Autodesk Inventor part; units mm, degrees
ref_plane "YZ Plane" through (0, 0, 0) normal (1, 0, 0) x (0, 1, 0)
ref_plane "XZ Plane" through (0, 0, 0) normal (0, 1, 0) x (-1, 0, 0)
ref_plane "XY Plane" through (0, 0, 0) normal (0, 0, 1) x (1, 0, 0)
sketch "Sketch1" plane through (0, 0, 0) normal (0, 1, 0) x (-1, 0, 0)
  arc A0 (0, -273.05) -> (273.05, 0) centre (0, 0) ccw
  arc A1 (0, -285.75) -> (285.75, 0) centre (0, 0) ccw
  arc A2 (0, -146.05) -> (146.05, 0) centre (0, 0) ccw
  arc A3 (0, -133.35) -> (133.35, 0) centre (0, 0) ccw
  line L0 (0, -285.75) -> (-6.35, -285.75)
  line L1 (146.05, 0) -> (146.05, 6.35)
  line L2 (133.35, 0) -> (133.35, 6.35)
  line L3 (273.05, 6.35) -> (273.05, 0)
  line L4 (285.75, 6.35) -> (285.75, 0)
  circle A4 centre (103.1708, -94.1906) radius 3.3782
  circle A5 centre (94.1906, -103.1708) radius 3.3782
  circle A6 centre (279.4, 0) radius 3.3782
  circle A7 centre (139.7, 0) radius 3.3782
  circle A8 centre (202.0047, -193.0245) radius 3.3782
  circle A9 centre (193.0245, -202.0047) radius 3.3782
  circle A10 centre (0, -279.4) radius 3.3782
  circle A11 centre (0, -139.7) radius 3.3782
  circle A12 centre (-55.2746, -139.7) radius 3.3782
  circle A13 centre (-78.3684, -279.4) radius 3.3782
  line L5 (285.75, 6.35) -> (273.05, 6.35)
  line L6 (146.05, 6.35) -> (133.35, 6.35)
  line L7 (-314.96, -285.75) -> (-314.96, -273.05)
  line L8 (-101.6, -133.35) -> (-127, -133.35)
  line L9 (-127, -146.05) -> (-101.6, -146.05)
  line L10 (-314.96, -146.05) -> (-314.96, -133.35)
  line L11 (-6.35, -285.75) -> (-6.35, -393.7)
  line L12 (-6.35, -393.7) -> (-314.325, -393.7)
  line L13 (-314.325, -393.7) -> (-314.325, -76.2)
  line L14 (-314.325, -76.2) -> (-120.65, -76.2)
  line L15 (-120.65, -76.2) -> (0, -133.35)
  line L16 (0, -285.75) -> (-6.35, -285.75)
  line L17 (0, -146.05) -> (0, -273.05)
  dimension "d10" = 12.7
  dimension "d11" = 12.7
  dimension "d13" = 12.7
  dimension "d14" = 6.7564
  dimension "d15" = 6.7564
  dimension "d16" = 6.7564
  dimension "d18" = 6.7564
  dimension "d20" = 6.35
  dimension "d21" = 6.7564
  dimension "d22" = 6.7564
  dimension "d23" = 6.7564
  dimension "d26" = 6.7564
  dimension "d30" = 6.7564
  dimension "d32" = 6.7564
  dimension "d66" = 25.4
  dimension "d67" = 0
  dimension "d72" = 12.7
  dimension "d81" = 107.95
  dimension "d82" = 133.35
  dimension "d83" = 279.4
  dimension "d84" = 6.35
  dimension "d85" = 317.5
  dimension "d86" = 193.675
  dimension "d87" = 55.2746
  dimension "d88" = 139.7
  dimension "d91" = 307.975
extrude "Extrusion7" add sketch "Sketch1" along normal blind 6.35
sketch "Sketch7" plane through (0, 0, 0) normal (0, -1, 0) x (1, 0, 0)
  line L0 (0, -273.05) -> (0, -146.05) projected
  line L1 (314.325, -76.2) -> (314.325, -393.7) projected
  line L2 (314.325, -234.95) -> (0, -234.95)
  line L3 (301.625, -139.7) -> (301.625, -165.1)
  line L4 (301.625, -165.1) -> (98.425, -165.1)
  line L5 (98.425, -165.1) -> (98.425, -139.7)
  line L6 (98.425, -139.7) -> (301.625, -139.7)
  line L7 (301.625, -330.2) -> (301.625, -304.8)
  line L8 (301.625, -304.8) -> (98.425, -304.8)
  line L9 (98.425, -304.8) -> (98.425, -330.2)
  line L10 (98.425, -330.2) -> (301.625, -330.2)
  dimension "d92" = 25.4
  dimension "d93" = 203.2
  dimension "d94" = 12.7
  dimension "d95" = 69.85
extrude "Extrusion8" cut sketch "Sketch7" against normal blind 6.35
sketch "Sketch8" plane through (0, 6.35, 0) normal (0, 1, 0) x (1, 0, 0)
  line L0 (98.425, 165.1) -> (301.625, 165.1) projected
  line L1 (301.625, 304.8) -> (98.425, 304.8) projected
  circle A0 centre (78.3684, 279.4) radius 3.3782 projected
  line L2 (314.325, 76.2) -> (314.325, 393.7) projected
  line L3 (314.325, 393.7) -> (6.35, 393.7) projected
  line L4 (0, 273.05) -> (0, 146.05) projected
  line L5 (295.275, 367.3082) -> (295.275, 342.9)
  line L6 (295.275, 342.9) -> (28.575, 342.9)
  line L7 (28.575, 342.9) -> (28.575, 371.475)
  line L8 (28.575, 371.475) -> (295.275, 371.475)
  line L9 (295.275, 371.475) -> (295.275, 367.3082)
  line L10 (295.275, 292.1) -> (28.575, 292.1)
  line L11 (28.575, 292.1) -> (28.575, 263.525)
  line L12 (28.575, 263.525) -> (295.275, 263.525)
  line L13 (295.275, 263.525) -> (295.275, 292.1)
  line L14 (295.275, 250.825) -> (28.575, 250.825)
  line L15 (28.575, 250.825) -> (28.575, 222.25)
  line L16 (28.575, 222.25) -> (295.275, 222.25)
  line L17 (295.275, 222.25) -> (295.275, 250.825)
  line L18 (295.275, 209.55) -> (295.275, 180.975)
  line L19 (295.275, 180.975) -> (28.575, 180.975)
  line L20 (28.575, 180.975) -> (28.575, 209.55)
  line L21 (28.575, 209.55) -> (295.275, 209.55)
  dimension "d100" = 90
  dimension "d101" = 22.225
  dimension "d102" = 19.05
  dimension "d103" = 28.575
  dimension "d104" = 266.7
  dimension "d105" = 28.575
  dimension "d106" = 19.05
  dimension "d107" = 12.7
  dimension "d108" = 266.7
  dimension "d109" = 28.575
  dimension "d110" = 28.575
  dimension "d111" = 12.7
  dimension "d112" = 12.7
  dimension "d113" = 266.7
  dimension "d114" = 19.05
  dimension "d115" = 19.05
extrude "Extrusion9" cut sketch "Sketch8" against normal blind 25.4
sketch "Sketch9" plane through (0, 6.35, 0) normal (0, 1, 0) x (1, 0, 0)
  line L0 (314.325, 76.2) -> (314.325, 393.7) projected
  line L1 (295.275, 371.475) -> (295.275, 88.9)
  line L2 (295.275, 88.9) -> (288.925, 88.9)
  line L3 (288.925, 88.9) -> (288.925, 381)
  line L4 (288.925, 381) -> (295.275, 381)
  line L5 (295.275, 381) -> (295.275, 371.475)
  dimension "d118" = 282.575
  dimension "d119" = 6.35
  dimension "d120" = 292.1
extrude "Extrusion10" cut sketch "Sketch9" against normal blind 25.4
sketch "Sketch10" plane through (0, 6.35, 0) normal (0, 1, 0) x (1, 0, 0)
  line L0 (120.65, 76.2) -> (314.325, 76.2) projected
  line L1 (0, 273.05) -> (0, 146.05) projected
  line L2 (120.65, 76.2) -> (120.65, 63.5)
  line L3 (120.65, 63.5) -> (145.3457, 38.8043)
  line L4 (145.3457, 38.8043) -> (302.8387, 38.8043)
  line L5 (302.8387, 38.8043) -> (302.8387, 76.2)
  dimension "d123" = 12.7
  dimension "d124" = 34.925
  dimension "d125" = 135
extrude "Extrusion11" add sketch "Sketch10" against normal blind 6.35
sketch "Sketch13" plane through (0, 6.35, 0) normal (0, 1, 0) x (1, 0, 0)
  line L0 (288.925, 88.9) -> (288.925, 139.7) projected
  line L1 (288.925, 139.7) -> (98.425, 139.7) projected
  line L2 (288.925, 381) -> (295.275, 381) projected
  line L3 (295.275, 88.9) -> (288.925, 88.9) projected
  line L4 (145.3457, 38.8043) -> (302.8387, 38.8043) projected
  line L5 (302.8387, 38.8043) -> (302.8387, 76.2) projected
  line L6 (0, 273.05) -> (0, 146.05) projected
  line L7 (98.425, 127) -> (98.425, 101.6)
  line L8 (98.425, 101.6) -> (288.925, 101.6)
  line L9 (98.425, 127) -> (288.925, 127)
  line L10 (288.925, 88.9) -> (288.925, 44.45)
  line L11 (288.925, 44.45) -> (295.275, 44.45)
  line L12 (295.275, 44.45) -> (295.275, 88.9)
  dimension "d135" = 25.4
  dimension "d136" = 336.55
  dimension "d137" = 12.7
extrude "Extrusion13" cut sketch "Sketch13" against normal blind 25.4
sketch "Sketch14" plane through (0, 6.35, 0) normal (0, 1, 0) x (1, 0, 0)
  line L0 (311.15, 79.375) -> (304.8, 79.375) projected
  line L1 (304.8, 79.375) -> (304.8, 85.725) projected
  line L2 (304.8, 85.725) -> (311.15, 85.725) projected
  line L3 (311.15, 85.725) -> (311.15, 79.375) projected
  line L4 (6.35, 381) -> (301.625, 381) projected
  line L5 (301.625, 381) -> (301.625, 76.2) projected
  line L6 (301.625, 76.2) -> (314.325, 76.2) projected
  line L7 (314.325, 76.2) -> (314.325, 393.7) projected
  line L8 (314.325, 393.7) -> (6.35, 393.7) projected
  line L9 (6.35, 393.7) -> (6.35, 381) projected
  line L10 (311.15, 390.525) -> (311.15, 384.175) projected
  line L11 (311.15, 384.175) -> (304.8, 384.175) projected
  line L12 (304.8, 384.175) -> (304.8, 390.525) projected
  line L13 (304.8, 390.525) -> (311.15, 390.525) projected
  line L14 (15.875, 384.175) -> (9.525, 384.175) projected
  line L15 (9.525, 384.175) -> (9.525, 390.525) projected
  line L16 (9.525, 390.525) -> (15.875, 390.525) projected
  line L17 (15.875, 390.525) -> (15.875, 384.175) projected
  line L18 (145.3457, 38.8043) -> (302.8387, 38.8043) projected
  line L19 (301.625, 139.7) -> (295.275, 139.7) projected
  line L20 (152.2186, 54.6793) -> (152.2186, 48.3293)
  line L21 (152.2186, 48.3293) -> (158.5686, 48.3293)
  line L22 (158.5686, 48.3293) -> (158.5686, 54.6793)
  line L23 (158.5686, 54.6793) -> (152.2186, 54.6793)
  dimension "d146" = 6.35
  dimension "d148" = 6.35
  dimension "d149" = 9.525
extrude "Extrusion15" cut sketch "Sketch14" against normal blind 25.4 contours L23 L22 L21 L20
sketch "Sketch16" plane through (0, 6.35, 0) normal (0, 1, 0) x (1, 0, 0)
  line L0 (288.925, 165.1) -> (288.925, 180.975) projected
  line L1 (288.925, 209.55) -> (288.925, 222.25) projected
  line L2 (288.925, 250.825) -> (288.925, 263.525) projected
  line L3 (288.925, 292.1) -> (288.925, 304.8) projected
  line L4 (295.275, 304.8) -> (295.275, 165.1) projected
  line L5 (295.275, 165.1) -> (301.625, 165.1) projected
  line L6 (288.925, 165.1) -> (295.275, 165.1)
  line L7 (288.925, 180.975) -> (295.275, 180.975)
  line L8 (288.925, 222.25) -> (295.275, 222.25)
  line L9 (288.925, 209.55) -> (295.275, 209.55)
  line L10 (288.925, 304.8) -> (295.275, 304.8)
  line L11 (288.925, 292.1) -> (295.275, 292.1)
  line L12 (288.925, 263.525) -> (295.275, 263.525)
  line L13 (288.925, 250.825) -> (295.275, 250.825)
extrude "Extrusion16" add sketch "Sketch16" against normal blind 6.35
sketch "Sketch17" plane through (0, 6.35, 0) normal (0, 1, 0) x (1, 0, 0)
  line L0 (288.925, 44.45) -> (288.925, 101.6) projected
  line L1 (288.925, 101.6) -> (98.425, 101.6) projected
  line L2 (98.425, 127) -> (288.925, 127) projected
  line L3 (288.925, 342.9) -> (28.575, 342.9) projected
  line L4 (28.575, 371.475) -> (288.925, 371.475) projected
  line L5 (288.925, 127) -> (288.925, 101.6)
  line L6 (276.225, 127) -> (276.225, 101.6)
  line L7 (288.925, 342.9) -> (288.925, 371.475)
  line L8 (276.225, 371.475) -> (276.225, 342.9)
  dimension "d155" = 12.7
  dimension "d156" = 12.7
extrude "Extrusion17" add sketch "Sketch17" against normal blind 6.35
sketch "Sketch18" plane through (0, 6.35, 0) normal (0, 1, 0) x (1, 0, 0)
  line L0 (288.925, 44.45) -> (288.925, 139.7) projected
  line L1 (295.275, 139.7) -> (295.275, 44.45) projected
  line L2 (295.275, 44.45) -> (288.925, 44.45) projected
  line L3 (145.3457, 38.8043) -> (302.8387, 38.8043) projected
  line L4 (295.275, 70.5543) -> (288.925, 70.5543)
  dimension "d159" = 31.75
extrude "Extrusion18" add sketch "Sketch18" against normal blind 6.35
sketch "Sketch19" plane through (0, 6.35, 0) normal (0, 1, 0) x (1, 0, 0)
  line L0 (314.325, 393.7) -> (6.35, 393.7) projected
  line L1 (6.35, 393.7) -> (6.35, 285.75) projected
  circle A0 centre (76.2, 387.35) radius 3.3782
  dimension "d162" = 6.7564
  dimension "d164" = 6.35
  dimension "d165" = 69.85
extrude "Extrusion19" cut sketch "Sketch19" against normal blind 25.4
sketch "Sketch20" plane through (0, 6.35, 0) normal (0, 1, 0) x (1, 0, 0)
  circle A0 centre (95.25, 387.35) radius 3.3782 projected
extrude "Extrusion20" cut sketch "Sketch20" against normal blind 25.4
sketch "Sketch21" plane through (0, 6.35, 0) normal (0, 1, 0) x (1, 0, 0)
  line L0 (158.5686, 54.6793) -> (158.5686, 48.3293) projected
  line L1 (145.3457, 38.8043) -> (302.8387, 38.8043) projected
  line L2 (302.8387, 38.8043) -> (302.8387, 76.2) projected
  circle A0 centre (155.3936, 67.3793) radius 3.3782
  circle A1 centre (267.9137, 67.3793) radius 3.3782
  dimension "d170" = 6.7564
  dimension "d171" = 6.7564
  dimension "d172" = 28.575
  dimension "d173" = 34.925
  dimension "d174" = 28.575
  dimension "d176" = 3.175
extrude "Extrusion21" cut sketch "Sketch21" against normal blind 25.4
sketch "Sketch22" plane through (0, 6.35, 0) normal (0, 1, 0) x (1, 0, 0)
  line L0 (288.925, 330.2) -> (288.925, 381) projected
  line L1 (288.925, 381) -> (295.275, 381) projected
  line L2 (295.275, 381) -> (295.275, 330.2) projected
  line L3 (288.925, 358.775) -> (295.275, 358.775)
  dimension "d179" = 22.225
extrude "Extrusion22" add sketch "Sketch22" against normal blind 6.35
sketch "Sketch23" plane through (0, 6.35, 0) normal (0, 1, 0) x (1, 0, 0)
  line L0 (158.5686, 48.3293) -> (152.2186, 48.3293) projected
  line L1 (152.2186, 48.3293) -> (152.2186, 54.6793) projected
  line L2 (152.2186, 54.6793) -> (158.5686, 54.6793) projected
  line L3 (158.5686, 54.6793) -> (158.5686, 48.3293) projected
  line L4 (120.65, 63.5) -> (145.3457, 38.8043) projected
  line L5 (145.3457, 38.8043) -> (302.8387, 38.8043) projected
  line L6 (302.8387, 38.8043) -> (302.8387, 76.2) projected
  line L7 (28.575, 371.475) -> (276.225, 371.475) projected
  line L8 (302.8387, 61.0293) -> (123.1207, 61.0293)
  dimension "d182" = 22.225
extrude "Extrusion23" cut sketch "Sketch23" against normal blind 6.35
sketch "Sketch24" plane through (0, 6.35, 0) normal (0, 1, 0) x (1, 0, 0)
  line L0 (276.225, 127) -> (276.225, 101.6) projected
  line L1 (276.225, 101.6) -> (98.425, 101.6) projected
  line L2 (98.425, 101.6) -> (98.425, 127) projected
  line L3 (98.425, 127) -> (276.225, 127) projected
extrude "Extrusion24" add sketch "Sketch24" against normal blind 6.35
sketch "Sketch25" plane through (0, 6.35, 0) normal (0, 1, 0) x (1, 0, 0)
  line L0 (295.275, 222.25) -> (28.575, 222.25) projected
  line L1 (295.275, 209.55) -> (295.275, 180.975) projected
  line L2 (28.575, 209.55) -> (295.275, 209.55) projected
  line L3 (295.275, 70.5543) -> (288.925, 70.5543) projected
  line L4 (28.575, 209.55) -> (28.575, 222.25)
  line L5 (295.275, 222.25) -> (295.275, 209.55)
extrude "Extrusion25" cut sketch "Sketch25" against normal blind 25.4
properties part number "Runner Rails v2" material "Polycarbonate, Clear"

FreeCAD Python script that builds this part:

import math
import FreeCAD as App
import Part
import Sketcher
from FreeCAD import Vector
Q = App.Units.Quantity


def add_polygon(sketch, points):
    """Adds a closed chain of lines whose ends are joined by coincident constraints."""
    first, n = sketch.GeometryCount, len(points)
    for a, b in zip(points, points[1:] + points[:1]):
        sketch.addGeometry(Part.LineSegment(App.Vector(*a, 0), App.Vector(*b, 0)), False)
    for i in range(n):
        sketch.addConstraint(Sketcher.Constraint("Coincident", first + i, 2, first + (i + 1) % n, 1))

doc = App.newDocument("Part")
params = doc.addObject("Spreadsheet::Sheet", "Params")
for row, (alias, value) in enumerate([
    ("sketch1_radius", "5.25 in"),
    ("sketch1_diameter", "0.266 in"),
    ("sketch1_width", "0.5 in"),
    ("sketch1_height", "12.5 in"),
    ("sketch1_width2", "0.25 in"),
    ("pad1_length", "0.25 in"),
    ("sketch2_width", "8 in"),
    ("sketch2_height", "1 in"),
    ("pocket1_length", "0.25 in"),
    ("sketch3_width", "10.5 in"),
    ("sketch3_height", "1.125 in"),
    ("sketch3_diameter", "0.266 in"),
    ("pocket2_length", "1 in"),
    ("sketch4_height", "11.5 in"),
    ("sketch4_width", "0.25 in"),
    ("pocket3_length", "1 in"),
    ("sketch5_height", "0.5 in"),
    ("sketch5_length", "1.375 in"),
    ("pad2_length", "0.25 in"),
    ("sketch6_height", "1 in"),
    ("sketch6_width", "7.5 in"),
    ("sketch6_width2", "0.25 in"),
    ("sketch6_height2", "1.75 in"),
    ("pocket4_length", "1 in"),
    ("sketch7_width", "0.25 in"),
    ("pocket5_length", "1 in"),
    ("sketch8_height", "0.5 in"),
    ("sketch8_width", "0.25 in"),
    ("sketch8_height2", "0.625 in"),
    ("pad3_length", "0.25 in"),
    ("sketch9_width", "0.5 in"),
    ("sketch9_height", "1 in"),
    ("sketch9_height2", "1.125 in"),
    ("pad4_length", "0.25 in"),
    ("sketch10_width", "0.25 in"),
    ("pad5_length", "0.25 in"),
    ("sketch11_diameter", "0.266 in"),
    ("pocket6_length", "1 in"),
    ("sketch12_diameter", "0.266 in"),
    ("pocket7_length", "1 in"),
    ("sketch13_diameter", "0.266 in"),
    ("pocket8_length", "1 in"),
    ("sketch14_height", "0.875 in"),
    ("sketch14_width", "0.25 in"),
    ("pad6_length", "0.25 in"),
    ("sketch15_height", "0.875 in"),
    ("sketch15_width", "0.25 in"),
    ("pocket9_length", "0.25 in"),
    ("sketch16_width", "7 in"),
    ("sketch16_height", "1 in"),
    ("pad7_length", "0.25 in"),
    ("sketch17_width", "10.5 in"),
    ("sketch17_height", "0.5 in"),
    ("pocket10_length", "1 in"),
], start=1):
    params.set(f"A{row}", alias)
    params.set(f"B{row}", "=" + value)
    params.setAlias(f"B{row}", alias)

body = doc.addObject("PartDesign::Body", "Body")

# Sketch on XZ plane
sketch1 = body.newObject("Sketcher::SketchObject", "Sketch")
sketch1.AttachmentSupport = (doc.getObject("XZ_Plane"), [""])
sketch1.MapMode = "FlatFace"
sketch1.addGeometry(Part.ArcOfCircle(Part.Circle(Vector(0, 0, 0), Vector(0, 0, 1), 273.1), math.radians(180), math.radians(270)), False)
sketch1.addGeometry(Part.LineSegment(Vector(0, -273.1, 0), Vector(0, -146.1, 0)), False)
sketch1.addGeometry(Part.ArcOfCircle(Part.Circle(Vector(0, 0, 0), Vector(0, 0, 1), 146.1), math.radians(180), math.radians(270)), False)
sketch1.addGeometry(Part.LineSegment(Vector(-146.1, 0, 0), Vector(-146.1, 6.3, 0)), False)
sketch1.addGeometry(Part.LineSegment(Vector(-146.1, 6.3, 0), Vector(-133.3, 6.3, 0)), False)
sketch1.addGeometry(Part.LineSegment(Vector(-133.3, 6.3, 0), Vector(-133.3, 0, 0)), False)
sketch1.addGeometry(Part.ArcOfCircle(Part.Circle(Vector(0, 0, 0), Vector(0, 0, 1), 133.3), math.radians(180), math.radians(270)), False)
sketch1.addGeometry(Part.LineSegment(Vector(0, -133.3, 0), Vector(120.7, -76.2, 0)), False)
sketch1.addGeometry(Part.LineSegment(Vector(120.7, -76.2, 0), Vector(314.3, -76.2, 0)), False)
sketch1.addGeometry(Part.LineSegment(Vector(314.3, -76.2, 0), Vector(314.3, -393.7, 0)), False)
sketch1.addGeometry(Part.LineSegment(Vector(314.3, -393.7, 0), Vector(6.3, -393.7, 0)), False)
sketch1.addGeometry(Part.LineSegment(Vector(6.3, -393.7, 0), Vector(6.3, -285.8, 0)), False)
sketch1.addGeometry(Part.LineSegment(Vector(6.3, -285.8, 0), Vector(0, -285.8, 0)), False)
sketch1.addGeometry(Part.ArcOfCircle(Part.Circle(Vector(0, 0, 0), Vector(0, 0, 1), 285.8), math.radians(180), math.radians(270)), False)
sketch1.addGeometry(Part.LineSegment(Vector(-285.8, 0, 0), Vector(-285.8, 6.3, 0)), False)
sketch1.addGeometry(Part.LineSegment(Vector(-285.8, 6.3, 0), Vector(-273.1, 6.3, 0)), False)
sketch1.addGeometry(Part.LineSegment(Vector(-273.1, 6.3, 0), Vector(-273.1, 0, 0)), False)
sketch1.addGeometry(Part.Circle(Vector(78.4, -279.4, 0), Vector(0, 0, 1), 3.4), False)
sketch1.addGeometry(Part.Circle(Vector(0, -279.4, 0), Vector(0, 0, 1), 3.4), False)
sketch1.addGeometry(Part.Circle(Vector(-193, -202, 0), Vector(0, 0, 1), 3.4), False)
sketch1.addGeometry(Part.Circle(Vector(55.3, -139.7, 0), Vector(0, 0, 1), 3.4), False)
sketch1.addGeometry(Part.Circle(Vector(0, -139.7, 0), Vector(0, 0, 1), 3.4), False)
sketch1.addGeometry(Part.Circle(Vector(-94.2, -103.2, 0), Vector(0, 0, 1), 3.4), False)
sketch1.addGeometry(Part.Circle(Vector(-103.2, -94.2, 0), Vector(0, 0, 1), 3.4), False)
sketch1.addGeometry(Part.Circle(Vector(-202, -193, 0), Vector(0, 0, 1), 3.4), False)
sketch1.addGeometry(Part.Circle(Vector(-139.7, 0, 0), Vector(0, 0, 1), 3.4), False)
sketch1.addGeometry(Part.Circle(Vector(-279.4, 0, 0), Vector(0, 0, 1), 3.4), False)
sketch1.addConstraint(Sketcher.Constraint("Coincident", 0, 2, 1, 1))
sketch1.addConstraint(Sketcher.Constraint("Coincident", 1, 2, 2, 2))
sketch1.addConstraint(Sketcher.Constraint("Tangent", 2, 1, 3, 1))
sketch1.addConstraint(Sketcher.Constraint("Coincident", 3, 2, 4, 1))
sketch1.addConstraint(Sketcher.Constraint("Coincident", 4, 2, 5, 1))
sketch1.addConstraint(Sketcher.Constraint("Tangent", 5, 2, 6, 1))
sketch1.addConstraint(Sketcher.Constraint("Coincident", 6, 2, 7, 1))
sketch1.addConstraint(Sketcher.Constraint("Coincident", 7, 2, 8, 1))
sketch1.addConstraint(Sketcher.Constraint("Coincident", 8, 2, 9, 1))
sketch1.addConstraint(Sketcher.Constraint("Coincident", 9, 2, 10, 1))
sketch1.addConstraint(Sketcher.Constraint("Coincident", 10, 2, 11, 1))
sketch1.addConstraint(Sketcher.Constraint("Coincident", 11, 2, 12, 1))
sketch1.addConstraint(Sketcher.Constraint("Tangent", 12, 2, 13, 2))
sketch1.addConstraint(Sketcher.Constraint("Tangent", 13, 1, 14, 1))
sketch1.addConstraint(Sketcher.Constraint("Coincident", 14, 2, 15, 1))
sketch1.addConstraint(Sketcher.Constraint("Coincident", 15, 2, 16, 1))
sketch1.addConstraint(Sketcher.Constraint("Tangent", 16, 2, 0, 1))
sketch1.addConstraint(Sketcher.Constraint("Vertical", 1))
sketch1.addConstraint(Sketcher.Constraint("Vertical", 3))
sketch1.addConstraint(Sketcher.Constraint("Horizontal", 4))
sketch1.addConstraint(Sketcher.Constraint("Vertical", 5))
sketch1.addConstraint(Sketcher.Constraint("Horizontal", 8))
sketch1.addConstraint(Sketcher.Constraint("Vertical", 9))
sketch1.addConstraint(Sketcher.Constraint("Horizontal", 10))
sketch1.addConstraint(Sketcher.Constraint("Vertical", 11))
sketch1.addConstraint(Sketcher.Constraint("Horizontal", 12))
sketch1.addConstraint(Sketcher.Constraint("Vertical", 14))
sketch1.addConstraint(Sketcher.Constraint("Horizontal", 15))
sketch1.addConstraint(Sketcher.Constraint("Vertical", 16))
sketch1.addConstraint(Sketcher.Constraint("Coincident", 0, 3, -1, 1))
sketch1.addConstraint(Sketcher.Constraint("Coincident", 2, 3, -1, 1))
sketch1.addConstraint(Sketcher.Constraint("Coincident", 6, 3, -1, 1))
sketch1.addConstraint(Sketcher.Constraint("Coincident", 13, 3, -1, 1))
sketch1.addConstraint(Sketcher.Constraint("Equal", 17, 18))
sketch1.addConstraint(Sketcher.Constraint("Equal", 18, 19))
sketch1.addConstraint(Sketcher.Constraint("Equal", 19, 20))
sketch1.addConstraint(Sketcher.Constraint("Equal", 20, 21))
sketch1.addConstraint(Sketcher.Constraint("Equal", 21, 22))
sketch1.addConstraint(Sketcher.Constraint("Equal", 22, 23))
sketch1.addConstraint(Sketcher.Constraint("Equal", 23, 24))
sketch1.addConstraint(Sketcher.Constraint("Equal", 24, 25))
sketch1.addConstraint(Sketcher.Constraint("Equal", 25, 26))
sketch1.addConstraint(Sketcher.Constraint("PointOnObject", 18, 3, -2))
sketch1.addConstraint(Sketcher.Constraint("PointOnObject", 21, 3, -2))
sketch1.addConstraint(Sketcher.Constraint("PointOnObject", 25, 3, -1))
sketch1.addConstraint(Sketcher.Constraint("PointOnObject", 26, 3, -1))
sketch1.addConstraint(Sketcher.Constraint("PointOnObject", 0, 2, -2))
sketch1.addConstraint(Sketcher.Constraint("PointOnObject", 6, 2, -2))
sketch1.addConstraint(Sketcher.Constraint("Horizontal", 17, 3, 18, 3))
sketch1.addConstraint(Sketcher.Constraint("Horizontal", 20, 3, 21, 3))
sketch1.addConstraint(Sketcher.Constraint("Horizontal", 4, 2, 14, 2))
sketch1.addConstraint(Sketcher.Constraint("Equal", 4, 15))
sketch1.addConstraint(Sketcher.Constraint("Equal", 12, 3))
sketch1.addConstraint(Sketcher.Constraint("Radius", 6, Q("5.25 in")))
sketch1.addConstraint(Sketcher.Constraint("Diameter", 17, Q("0.266 in")))
sketch1.addConstraint(Sketcher.Constraint("DistanceX", 4, 1, 4, 2, Q("0.5 in")))
sketch1.addConstraint(Sketcher.Constraint("DistanceY", 9, 2, 9, 1, Q("12.5 in")))
sketch1.addConstraint(Sketcher.Constraint("DistanceY", 17, 3, -1, 1, Q("11 in")))
sketch1.addConstraint(Sketcher.Constraint("DistanceX", 26, 3, -1, 1, Q("11 in")))
sketch1.addConstraint(Sketcher.Constraint("DistanceX", 12, 2, 12, 1, Q("0.25 in")))
sketch1.addConstraint(Sketcher.Constraint("DistanceY", 11, 1, 11, 2, Q("4.25 in")))
sketch1.addConstraint(Sketcher.Constraint("DistanceY", 20, 3, -1, 1, Q("5.5 in")))
sketch1.addConstraint(Sketcher.Constraint("DistanceX", 25, 3, -1, 1, Q("5.5 in")))
sketch1.addConstraint(Sketcher.Constraint("DistanceY", 11, 2, 1, 2, Q("5.5 in")))
sketch1.addConstraint(Sketcher.Constraint("DistanceX", 8, 1, 8, 2, Q("7.625 in")))
sketch1.addConstraint(Sketcher.Constraint("DistanceX", 10, 2, 10, 1, Q("12.125 in")))
sketch1.addConstraint(Sketcher.Constraint("DistanceX", -1, 1, 20, 3, Q("55.2746 mm")))
sketch1.addConstraint(Sketcher.Constraint("DistanceX", 19, 3, -1, 1, Q("7.5994 in")))
sketch1.addConstraint(Sketcher.Constraint("DistanceX", 22, 3, -1, 1, Q("3.7083 in")))
sketch1.addConstraint(Sketcher.Constraint("DistanceY", 23, 3, -1, 1, Q("3.7083 in")))
sketch1.addConstraint(Sketcher.Constraint("DistanceY", 24, 3, -1, 1, Q("7.5994 in")))
sketch1.addConstraint(Sketcher.Constraint("DistanceX", 20, 3, 17, 3, Q("0.9092 in")))
sketch1.addConstraint(Sketcher.Constraint("DistanceX", 24, 3, 23, 3, Q("3.8911 in")))
sketch1.addConstraint(Sketcher.Constraint("DistanceY", 19, 3, -1, 1, Q("202.0047 mm")))
sketch1.addConstraint(Sketcher.Constraint("DistanceY", 22, 3, -1, 1, Q("103.1708 mm")))
sketch1.addConstraint(Sketcher.Constraint("DistanceX", 23, 3, -1, 1, Q("103.1708 mm")))
sketch1.setExpression("Constraints[53]", "Params.sketch1_radius")
sketch1.setExpression("Constraints[54]", "Params.sketch1_diameter")
sketch1.setExpression("Constraints[55]", "Params.sketch1_width")
sketch1.setExpression("Constraints[56]", "Params.sketch1_height")
sketch1.setExpression("Constraints[59]", "Params.sketch1_width2")
pad1 = body.newObject("PartDesign::Pad", "Pad")
pad1.Profile = sketch1
pad1.setExpression("Length", "Params.pad1_length")
pad1.Reversed = True

# Sketch on XZ plane
sketch2 = body.newObject("Sketcher::SketchObject", "Sketch001")
sketch2.AttachmentSupport = (doc.getObject("XZ_Plane"), [""])
sketch2.MapMode = "FlatFace"
add_polygon(sketch2, [(302, -165), (302, -140), (98, -140), (98, -165)])  # lines 0-3
add_polygon(sketch2, [(98, -330), (302, -330), (302, -305), (98, -305)])  # lines 4-7
sketch2.addConstraint(Sketcher.Constraint("Vertical", 0))
sketch2.addConstraint(Sketcher.Constraint("Horizontal", 1))
sketch2.addConstraint(Sketcher.Constraint("Vertical", 2))
sketch2.addConstraint(Sketcher.Constraint("Horizontal", 3))
sketch2.addConstraint(Sketcher.Constraint("Horizontal", 4))
sketch2.addConstraint(Sketcher.Constraint("Vertical", 5))
sketch2.addConstraint(Sketcher.Constraint("Horizontal", 6))
sketch2.addConstraint(Sketcher.Constraint("Vertical", 7))
sketch2.addConstraint(Sketcher.Constraint("Vertical", 3, 2, 4, 2))
sketch2.addConstraint(Sketcher.Constraint("Vertical", 2, 2, 6, 2))
sketch2.addConstraint(Sketcher.Constraint("Equal", 2, 5))
sketch2.addConstraint(Sketcher.Constraint("DistanceX", 1, 2, 1, 1, Q("8 in")))
sketch2.addConstraint(Sketcher.Constraint("DistanceY", 0, 1, 0, 2, Q("1 in")))
sketch2.addConstraint(Sketcher.Constraint("DistanceY", 4, 2, -1, 1, Q("13 in")))
sketch2.addConstraint(Sketcher.Constraint("DistanceY", 0, 2, -1, 1, Q("5.5 in")))
sketch2.addConstraint(Sketcher.Constraint("DistanceX", -1, 1, 0, 2, Q("11.875 in")))
sketch2.setExpression("Constraints[19]", "Params.sketch2_width")
sketch2.setExpression("Constraints[20]", "Params.sketch2_height")
pocket1 = body.newObject("PartDesign::Pocket", "Pocket")
pocket1.Profile = sketch2
pocket1.setExpression("Length", "Params.pocket1_length")

# Sketch on XZ plane
sketch3 = body.newObject("Sketcher::SketchObject", "Sketch002")
sketch3.AttachmentSupport = (doc.getObject("XZ_Plane"), [""])
sketch3.MapMode = "FlatFace"
sketch3.AttachmentOffset = App.Placement(Vector(0, 0, -0.25 * 25.4), App.Rotation())
add_polygon(sketch3, [(295.3, -342.9), (295.3, -371.5), (28.6, -371.5), (28.6, -342.9)])  # lines 0-3
add_polygon(sketch3, [(295.3, -263.5), (295.3, -292.1), (28.6, -292.1), (28.6, -263.5)])  # lines 4-7
sketch3.addGeometry(Part.Circle(Vector(78.4, -279.4, 0), Vector(0, 0, 1), 3.4), False)  # 8
add_polygon(sketch3, [(295.3, -222.2), (295.3, -250.8), (28.6, -250.8), (28.6, -222.2)])  # lines 9-12
add_polygon(sketch3, [(295.3, -181), (295.3, -209.6), (28.6, -209.6), (28.6, -181)])  # lines 13-16
sketch3.addConstraint(Sketcher.Constraint("Vertical", 0))
sketch3.addConstraint(Sketcher.Constraint("Horizontal", 1))
sketch3.addConstraint(Sketcher.Constraint("Vertical", 2))
sketch3.addConstraint(Sketcher.Constraint("Horizontal", 3))
sketch3.addConstraint(Sketcher.Constraint("Vertical", 4))
sketch3.addConstraint(Sketcher.Constraint("Horizontal", 5))
sketch3.addConstraint(Sketcher.Constraint("Vertical", 6))
sketch3.addConstraint(Sketcher.Constraint("Horizontal", 7))
sketch3.addConstraint(Sketcher.Constraint("Vertical", 9))
sketch3.addConstraint(Sketcher.Constraint("Horizontal", 10))
sketch3.addConstraint(Sketcher.Constraint("Vertical", 11))
sketch3.addConstraint(Sketcher.Constraint("Horizontal", 12))
sketch3.addConstraint(Sketcher.Constraint("Vertical", 13))
sketch3.addConstraint(Sketcher.Constraint("Horizontal", 14))
sketch3.addConstraint(Sketcher.Constraint("Vertical", 15))
sketch3.addConstraint(Sketcher.Constraint("Horizontal", 16))
sketch3.addConstraint(Sketcher.Constraint("Vertical", 3, 2, 4, 2))
sketch3.addConstraint(Sketcher.Constraint("Vertical", 2, 2, 5, 2))
sketch3.addConstraint(Sketcher.Constraint("Vertical", 7, 2, 9, 2))
sketch3.addConstraint(Sketcher.Constraint("Vertical", 6, 2, 10, 2))
sketch3.addConstraint(Sketcher.Constraint("Vertical", 12, 2, 13, 2))
sketch3.addConstraint(Sketcher.Constraint("Vertical", 11, 2, 14, 2))
sketch3.addConstraint(Sketcher.Constraint("Equal", 2, 4))
sketch3.addConstraint(Sketcher.Constraint("Equal", 6, 9))
sketch3.addConstraint(Sketcher.Constraint("Equal", 11, 13))
sketch3.addConstraint(Sketcher.Constraint("DistanceX", 1, 2, 1, 1, Q("10.5 in")))
sketch3.addConstraint(Sketcher.Constraint("DistanceY", 4, 2, 8, 3, Q("0.5 in")))
sketch3.addConstraint(Sketcher.Constraint("DistanceY", 7, 2, 9, 2, Q("0.5 in")))
sketch3.addConstraint(Sketcher.Constraint("DistanceY", 12, 2, 13, 2, Q("0.5 in")))
sketch3.addConstraint(Sketcher.Constraint("DistanceY", 0, 2, 0, 1, Q("1.125 in")))
sketch3.addConstraint(Sketcher.Constraint("Diameter", 8, Q("0.266 in")))
sketch3.addConstraint(Sketcher.Constraint("DistanceY", 8, 3, -1, 1, Q("11 in")))
sketch3.addConstraint(Sketcher.Constraint("DistanceX", -1, 1, 1, 2, Q("1.125 in")))
sketch3.addConstraint(Sketcher.Constraint("DistanceY", 3, 2, 4, 2, Q("2 in")))
sketch3.addConstraint(Sketcher.Constraint("DistanceX", -1, 1, 8, 3, Q("78.3684 mm")))
sketch3.setExpression("Constraints[41]", "Params.sketch3_width")
sketch3.setExpression("Constraints[45]", "Params.sketch3_height")
sketch3.setExpression("Constraints[46]", "Params.sketch3_diameter")
pocket2 = body.newObject("PartDesign::Pocket", "Pocket001")
pocket2.Profile = sketch3
pocket2.setExpression("Length", "Params.pocket2_length")
pocket2.Reversed = True

# Sketch on XZ plane
sketch4 = body.newObject("Sketcher::SketchObject", "Sketch003")
sketch4.AttachmentSupport = (doc.getObject("XZ_Plane"), [""])
sketch4.MapMode = "FlatFace"
sketch4.AttachmentOffset = App.Placement(Vector(0, 0, -0.25 * 25.4), App.Rotation())
add_polygon(sketch4, [(295, -89), (295, -381), (289, -381), (289, -89)])  # lines 0-3
sketch4.addConstraint(Sketcher.Constraint("Vertical", 0))
sketch4.addConstraint(Sketcher.Constraint("Horizontal", 1))
sketch4.addConstraint(Sketcher.Constraint("Vertical", 2))
sketch4.addConstraint(Sketcher.Constraint("Horizontal", 3))
sketch4.addConstraint(Sketcher.Constraint("DistanceY", 0, 2, 0, 1, Q("11.5 in")))
sketch4.addConstraint(Sketcher.Constraint("DistanceX", 1, 2, 1, 1, Q("0.25 in")))
sketch4.addConstraint(Sketcher.Constraint("DistanceY", 0, 2, -1, 1, Q("15 in")))
sketch4.addConstraint(Sketcher.Constraint("DistanceX", -1, 1, 0, 2, Q("11.625 in")))
sketch4.setExpression("Constraints[8]", "Params.sketch4_height")
sketch4.setExpression("Constraints[9]", "Params.sketch4_width")
pocket3 = body.newObject("PartDesign::Pocket", "Pocket002")
pocket3.Profile = sketch4
pocket3.setExpression("Length", "Params.pocket3_length")
pocket3.Reversed = True

# Sketch on XZ plane
sketch5 = body.newObject("Sketcher::SketchObject", "Sketch004")
sketch5.AttachmentSupport = (doc.getObject("XZ_Plane"), [""])
sketch5.MapMode = "FlatFace"
sketch5.AttachmentOffset = App.Placement(Vector(0, 0, -0.25 * 25.4), App.Rotation())
add_polygon(sketch5, [(303, -76), (121, -76), (121, -64), (145, -39), (303, -39)])  # lines 0-4
sketch5.addConstraint(Sketcher.Constraint("Horizontal", 0))
sketch5.addConstraint(Sketcher.Constraint("Vertical", 1))
sketch5.addConstraint(Sketcher.Constraint("Horizontal", 3))
sketch5.addConstraint(Sketcher.Constraint("Vertical", 4))
sketch5.addConstraint(Sketcher.Constraint("DistanceY", 1, 1, 1, 2, Q("0.5 in")))
sketch5.addConstraint(Sketcher.Constraint("Distance", 2, Q("1.375 in")))
sketch5.addConstraint(Sketcher.Constraint("DistanceY", 0, 2, -1, 1, Q("3 in")))
sketch5.addConstraint(Sketcher.Constraint("Angle", 2, Q("45 deg")))
sketch5.addConstraint(Sketcher.Constraint("DistanceX", -1, 1, 0, 2, Q("4.75 in")))
sketch5.addConstraint(Sketcher.Constraint("DistanceX", 3, 1, 3, 2, Q("6.2005 in")))
sketch5.setExpression("Constraints[9]", "Params.sketch5_height")
sketch5.setExpression("Constraints[10]", "Params.sketch5_length")
pad2 = body.newObject("PartDesign::Pad", "Pad001")
pad2.Profile = sketch5
pad2.setExpression("Length", "Params.pad2_length")

# Sketch on XZ plane
sketch6 = body.newObject("Sketcher::SketchObject", "Sketch005")
sketch6.AttachmentSupport = (doc.getObject("XZ_Plane"), [""])
sketch6.MapMode = "FlatFace"
sketch6.AttachmentOffset = App.Placement(Vector(0, 0, -0.25 * 25.4), App.Rotation())
add_polygon(sketch6, [(98, -102), (289, -102), (289, -127), (98, -127)])  # lines 0-3
add_polygon(sketch6, [(295, -89), (289, -89), (289, -44), (295, -44)])  # lines 4-7
sketch6.addConstraint(Sketcher.Constraint("Horizontal", 0))
sketch6.addConstraint(Sketcher.Constraint("Vertical", 1))
sketch6.addConstraint(Sketcher.Constraint("Horizontal", 2))
sketch6.addConstraint(Sketcher.Constraint("Vertical", 3))
sketch6.addConstraint(Sketcher.Constraint("Horizontal", 4))
sketch6.addConstraint(Sketcher.Constraint("Vertical", 5))
sketch6.addConstraint(Sketcher.Constraint("Horizontal", 6))
sketch6.addConstraint(Sketcher.Constraint("Vertical", 7))
sketch6.addConstraint(Sketcher.Constraint("Vertical", 1, 2, 4, 2))
sketch6.addConstraint(Sketcher.Constraint("DistanceY", 1, 2, 1, 1, Q("1 in")))
sketch6.addConstraint(Sketcher.Constraint("DistanceY", 0, 2, 4, 2, Q("0.5 in")))
sketch6.addConstraint(Sketcher.Constraint("DistanceX", 0, 1, 0, 2, Q("7.5 in")))
sketch6.addConstraint(Sketcher.Constraint("DistanceY", 0, 2, -1, 1, Q("4 in")))
sketch6.addConstraint(Sketcher.Constraint("DistanceX", 4, 2, 4, 1, Q("0.25 in")))
sketch6.addConstraint(Sketcher.Constraint("DistanceY", 5, 1, 5, 2, Q("1.75 in")))
sketch6.addConstraint(Sketcher.Constraint("DistanceX", -1, 1, 0, 2, Q("11.375 in")))
sketch6.setExpression("Constraints[17]", "Params.sketch6_height")
sketch6.setExpression("Constraints[19]", "Params.sketch6_width")
sketch6.setExpression("Constraints[21]", "Params.sketch6_width2")
sketch6.setExpression("Constraints[22]", "Params.sketch6_height2")
pocket4 = body.newObject("PartDesign::Pocket", "Pocket003")
pocket4.Profile = sketch6
pocket4.setExpression("Length", "Params.pocket4_length")
pocket4.Reversed = True

# Sketch on XZ plane
sketch7 = body.newObject("Sketcher::SketchObject", "Sketch006")
sketch7.AttachmentSupport = (doc.getObject("XZ_Plane"), [""])
sketch7.MapMode = "FlatFace"
sketch7.AttachmentOffset = App.Placement(Vector(0, 0, -0.25 * 25.4), App.Rotation())
add_polygon(sketch7, [(159, -55), (152, -55), (152, -48), (159, -48)])  # lines 0-3
sketch7.addConstraint(Sketcher.Constraint("Horizontal", 0))
sketch7.addConstraint(Sketcher.Constraint("Vertical", 1))
sketch7.addConstraint(Sketcher.Constraint("Horizontal", 2))
sketch7.addConstraint(Sketcher.Constraint("Vertical", 3))
sketch7.addConstraint(Sketcher.Constraint("Equal", 2, 1))
sketch7.addConstraint(Sketcher.Constraint("DistanceX", 0, 2, 0, 1, Q("0.25 in")))
sketch7.addConstraint(Sketcher.Constraint("DistanceX", -1, 1, 0, 2, Q("152.2186 mm")))
sketch7.addConstraint(Sketcher.Constraint("DistanceY", 0, 2, -1, 1, Q("54.6793 mm")))
sketch7.setExpression("Constraints[9]", "Params.sketch7_width")
pocket5 = body.newObject("PartDesign::Pocket", "Pocket004")
pocket5.Profile = sketch7
pocket5.setExpression("Length", "Params.pocket5_length")
pocket5.Reversed = True

# Sketch on XZ plane
sketch8 = body.newObject("Sketcher::SketchObject", "Sketch007")
sketch8.AttachmentSupport = (doc.getObject("XZ_Plane"), [""])
sketch8.MapMode = "FlatFace"
sketch8.AttachmentOffset = App.Placement(Vector(0, 0, -0.25 * 25.4), App.Rotation())
add_polygon(sketch8, [(289, -292), (295, -292), (295, -305), (289, -305)])  # lines 0-3
add_polygon(sketch8, [(289, -251), (295, -251), (295, -264), (289, -264)])  # lines 4-7
add_polygon(sketch8, [(289, -210), (295, -210), (295, -222), (289, -222)])  # lines 8-11
add_polygon(sketch8, [(289, -181), (289, -165), (295, -165), (295, -181)])  # lines 12-15
sketch8.addConstraint(Sketcher.Constraint("Horizontal", 0))
sketch8.addConstraint(Sketcher.Constraint("Vertical", 1))
sketch8.addConstraint(Sketcher.Constraint("Horizontal", 2))
sketch8.addConstraint(Sketcher.Constraint("Vertical", 3))
sketch8.addConstraint(Sketcher.Constraint("Horizontal", 4))
sketch8.addConstraint(Sketcher.Constraint("Vertical", 5))
sketch8.addConstraint(Sketcher.Constraint("Horizontal", 6))
sketch8.addConstraint(Sketcher.Constraint("Vertical", 7))
sketch8.addConstraint(Sketcher.Constraint("Horizontal", 8))
sketch8.addConstraint(Sketcher.Constraint("Vertical", 9))
sketch8.addConstraint(Sketcher.Constraint("Horizontal", 10))
sketch8.addConstraint(Sketcher.Constraint("Vertical", 11))
sketch8.addConstraint(Sketcher.Constraint("Vertical", 12))
sketch8.addConstraint(Sketcher.Constraint("Horizontal", 13))
sketch8.addConstraint(Sketcher.Constraint("Vertical", 14))
sketch8.addConstraint(Sketcher.Constraint("Horizontal", 15))
sketch8.addConstraint(Sketcher.Constraint("Vertical", 1, 2, 4, 2))
sketch8.addConstraint(Sketcher.Constraint("Vertical", 3, 2, 6, 2))
sketch8.addConstraint(Sketcher.Constraint("Vertical", 5, 2, 8, 2))
sketch8.addConstraint(Sketcher.Constraint("Vertical", 7, 2, 10, 2))
sketch8.addConstraint(Sketcher.Constraint("Vertical", 11, 2, 12, 2))
sketch8.addConstraint(Sketcher.Constraint("Vertical", 9, 2, 13, 2))
sketch8.addConstraint(Sketcher.Constraint("Equal", 3, 5))
sketch8.addConstraint(Sketcher.Constraint("Equal", 7, 9))
sketch8.addConstraint(Sketcher.Constraint("DistanceY", 1, 2, 1, 1, Q("0.5 in")))
sketch8.addConstraint(Sketcher.Constraint("DistanceY", 1, 2, -1, 1, Q("12 in")))
sketch8.addConstraint(Sketcher.Constraint("DistanceX", 0, 1, 0, 2, Q("0.25 in")))
sketch8.addConstraint(Sketcher.Constraint("DistanceY", 12, 2, -1, 1, Q("6.5 in")))
sketch8.addConstraint(Sketcher.Constraint("DistanceY", 12, 1, 12, 2, Q("0.625 in")))
sketch8.addConstraint(Sketcher.Constraint("DistanceY", 8, 2, -1, 1, Q("8.25 in")))
sketch8.addConstraint(Sketcher.Constraint("DistanceX", -1, 1, 0, 2, Q("11.625 in")))
sketch8.addConstraint(Sketcher.Constraint("DistanceY", 4, 2, -1, 1, Q("9.875 in")))
sketch8.setExpression("Constraints[40]", "Params.sketch8_height")
sketch8.setExpression("Constraints[42]", "Params.sketch8_width")
sketch8.setExpression("Constraints[44]", "Params.sketch8_height2")
pad3 = body.newObject("PartDesign::Pad", "Pad002")
pad3.Profile = sketch8
pad3.setExpression("Length", "Params.pad3_length")

# Sketch on XZ plane
sketch9 = body.newObject("Sketcher::SketchObject", "Sketch008")
sketch9.AttachmentSupport = (doc.getObject("XZ_Plane"), [""])
sketch9.MapMode = "FlatFace"
sketch9.AttachmentOffset = App.Placement(Vector(0, 0, -0.25 * 25.4), App.Rotation())
add_polygon(sketch9, [(276, -102), (289, -102), (289, -127), (276, -127)])  # lines 0-3
add_polygon(sketch9, [(276, -343), (289, -343), (289, -371), (276, -371)])  # lines 4-7
sketch9.addConstraint(Sketcher.Constraint("Horizontal", 0))
sketch9.addConstraint(Sketcher.Constraint("Vertical", 1))
sketch9.addConstraint(Sketcher.Constraint("Horizontal", 2))
sketch9.addConstraint(Sketcher.Constraint("Vertical", 3))
sketch9.addConstraint(Sketcher.Constraint("Horizontal", 4))
sketch9.addConstraint(Sketcher.Constraint("Vertical", 5))
sketch9.addConstraint(Sketcher.Constraint("Horizontal", 6))
sketch9.addConstraint(Sketcher.Constraint("Vertical", 7))
sketch9.addConstraint(Sketcher.Constraint("Vertical", 1, 2, 4, 2))
sketch9.addConstraint(Sketcher.Constraint("Vertical", 3, 2, 6, 2))
sketch9.addConstraint(Sketcher.Constraint("DistanceX", 0, 1, 0, 2, Q("0.5 in")))
sketch9.addConstraint(Sketcher.Constraint("DistanceY", 1, 2, 1, 1, Q("1 in")))
sketch9.addConstraint(Sketcher.Constraint("DistanceY", 0, 2, -1, 1, Q("4 in")))
sketch9.addConstraint(Sketcher.Constraint("DistanceY", 4, 2, -1, 1, Q("13.5 in")))
sketch9.addConstraint(Sketcher.Constraint("DistanceY", 5, 2, 5, 1, Q("1.125 in")))
sketch9.addConstraint(Sketcher.Constraint("DistanceX", -1, 1, 0, 2, Q("11.375 in")))
sketch9.setExpression("Constraints[18]", "Params.sketch9_width")
sketch9.setExpression("Constraints[19]", "Params.sketch9_height")
sketch9.setExpression("Constraints[22]", "Params.sketch9_height2")
pad4 = body.newObject("PartDesign::Pad", "Pad003")
pad4.Profile = sketch9
pad4.setExpression("Length", "Params.pad4_length")

# Sketch on XZ plane
sketch10 = body.newObject("Sketcher::SketchObject", "Sketch009")
sketch10.AttachmentSupport = (doc.getObject("XZ_Plane"), [""])
sketch10.MapMode = "FlatFace"
sketch10.AttachmentOffset = App.Placement(Vector(0, 0, -0.25 * 25.4), App.Rotation())
add_polygon(sketch10, [(289, -71), (289, -44), (295, -44), (295, -71)])  # lines 0-3
sketch10.addConstraint(Sketcher.Constraint("Vertical", 0))
sketch10.addConstraint(Sketcher.Constraint("Horizontal", 1))
sketch10.addConstraint(Sketcher.Constraint("Vertical", 2))
sketch10.addConstraint(Sketcher.Constraint("Horizontal", 3))
sketch10.addConstraint(Sketcher.Constraint("DistanceX", 1, 1, 1, 2, Q("0.25 in")))
sketch10.addConstraint(Sketcher.Constraint("DistanceY", 0, 2, -1, 1, Q("1.75 in")))
sketch10.addConstraint(Sketcher.Constraint("DistanceX", -1, 1, 0, 2, Q("11.375 in")))
sketch10.addConstraint(Sketcher.Constraint("DistanceY", 0, 1, 0, 2, Q("26.1043 mm")))
sketch10.setExpression("Constraints[8]", "Params.sketch10_width")
pad5 = body.newObject("PartDesign::Pad", "Pad004")
pad5.Profile = sketch10
pad5.setExpression("Length", "Params.pad5_length")

# Sketch on XZ plane
sketch11 = body.newObject("Sketcher::SketchObject", "Sketch010")
sketch11.AttachmentSupport = (doc.getObject("XZ_Plane"), [""])
sketch11.MapMode = "FlatFace"
sketch11.AttachmentOffset = App.Placement(Vector(0, 0, -0.25 * 25.4), App.Rotation())
sketch11.addGeometry(Part.Circle(Vector(76.2, -387.4, 0), Vector(0, 0, 1), 3.4), False)
sketch11.addConstraint(Sketcher.Constraint("Diameter", 0, Q("0.266 in")))
sketch11.addConstraint(Sketcher.Constraint("DistanceX", -1, 1, 0, 3, Q("3 in")))
sketch11.addConstraint(Sketcher.Constraint("DistanceY", 0, 3, -1, 1, Q("15.25 in")))
sketch11.setExpression("Constraints[0]", "Params.sketch11_diameter")
pocket6 = body.newObject("PartDesign::Pocket", "Pocket005")
pocket6.Profile = sketch11
pocket6.setExpression("Length", "Params.pocket6_length")
pocket6.Reversed = True

# Sketch on XZ plane
sketch12 = body.newObject("Sketcher::SketchObject", "Sketch011")
sketch12.AttachmentSupport = (doc.getObject("XZ_Plane"), [""])
sketch12.MapMode = "FlatFace"
sketch12.AttachmentOffset = App.Placement(Vector(0, 0, -0.25 * 25.4), App.Rotation())
sketch12.addGeometry(Part.Circle(Vector(95.2, -387.4, 0), Vector(0, 0, 1), 3.4), False)
sketch12.addConstraint(Sketcher.Constraint("Diameter", 0, Q("0.266 in")))
sketch12.addConstraint(Sketcher.Constraint("DistanceX", -1, 1, 0, 3, Q("3.75 in")))
sketch12.addConstraint(Sketcher.Constraint("DistanceY", 0, 3, -1, 1, Q("15.25 in")))
sketch12.setExpression("Constraints[0]", "Params.sketch12_diameter")
pocket7 = body.newObject("PartDesign::Pocket", "Pocket006")
pocket7.Profile = sketch12
pocket7.setExpression("Length", "Params.pocket7_length")
pocket7.Reversed = True

# Sketch on XZ plane
sketch13 = body.newObject("Sketcher::SketchObject", "Sketch012")
sketch13.AttachmentSupport = (doc.getObject("XZ_Plane"), [""])
sketch13.MapMode = "FlatFace"
sketch13.AttachmentOffset = App.Placement(Vector(0, 0, -0.25 * 25.4), App.Rotation())
sketch13.addGeometry(Part.Circle(Vector(155.4, -67.4, 0), Vector(0, 0, 1), 3.4), False)
sketch13.addGeometry(Part.Circle(Vector(267.9, -67.4, 0), Vector(0, 0, 1), 3.4), False)
sketch13.addConstraint(Sketcher.Constraint("Equal", 0, 1))
sketch13.addConstraint(Sketcher.Constraint("Horizontal", 0, 3, 1, 3))
sketch13.addConstraint(Sketcher.Constraint("Diameter", 0, Q("0.266 in")))
sketch13.addConstraint(Sketcher.Constraint("DistanceX", -1, 1, 0, 3, Q("155.3936 mm")))
sketch13.addConstraint(Sketcher.Constraint("DistanceY", 0, 3, -1, 1, Q("67.3793 mm")))
sketch13.addConstraint(Sketcher.Constraint("DistanceX", -1, 1, 1, 3, Q("267.9137 mm")))
sketch13.setExpression("Constraints[2]", "Params.sketch13_diameter")
pocket8 = body.newObject("PartDesign::Pocket", "Pocket007")
pocket8.Profile = sketch13
pocket8.setExpression("Length", "Params.pocket8_length")
pocket8.Reversed = True

# Sketch on XZ plane
sketch14 = body.newObject("Sketcher::SketchObject", "Sketch013")
sketch14.AttachmentSupport = (doc.getObject("XZ_Plane"), [""])
sketch14.MapMode = "FlatFace"
sketch14.AttachmentOffset = App.Placement(Vector(0, 0, -0.25 * 25.4), App.Rotation())
add_polygon(sketch14, [(289, -381), (289, -359), (295, -359), (295, -381)])  # lines 0-3
sketch14.addConstraint(Sketcher.Constraint("Vertical", 0))
sketch14.addConstraint(Sketcher.Constraint("Horizontal", 1))
sketch14.addConstraint(Sketcher.Constraint("Vertical", 2))
sketch14.addConstraint(Sketcher.Constraint("Horizontal", 3))
sketch14.addConstraint(Sketcher.Constraint("DistanceY", 0, 1, 0, 2, Q("0.875 in")))
sketch14.addConstraint(Sketcher.Constraint("DistanceY", 2, 2, -1, 1, Q("15 in")))
sketch14.addConstraint(Sketcher.Constraint("DistanceX", 1, 1, 1, 2, Q("0.25 in")))
sketch14.addConstraint(Sketcher.Constraint("DistanceX", -1, 1, 0, 2, Q("11.375 in")))
sketch14.setExpression("Constraints[8]", "Params.sketch14_height")
sketch14.setExpression("Constraints[10]", "Params.sketch14_width")
pad6 = body.newObject("PartDesign::Pad", "Pad005")
pad6.Profile = sketch14
pad6.setExpression("Length", "Params.pad6_length")

# Sketch on XZ plane
sketch15 = body.newObject("Sketcher::SketchObject", "Sketch014")
sketch15.AttachmentSupport = (doc.getObject("XZ_Plane"), [""])
sketch15.MapMode = "FlatFace"
sketch15.AttachmentOffset = App.Placement(Vector(0, 0, -0.25 * 25.4), App.Rotation())
add_polygon(sketch15, [(303, -61), (123, -61), (145, -39), (303, -39)])  # lines 0-3
add_polygon(sketch15, [(159, -55), (159, -48), (152, -48), (152, -55)])  # lines 4-7
sketch15.addConstraint(Sketcher.Constraint("Horizontal", 0))
sketch15.addConstraint(Sketcher.Constraint("Horizontal", 2))
sketch15.addConstraint(Sketcher.Constraint("Vertical", 3))
sketch15.addConstraint(Sketcher.Constraint("Vertical", 4))
sketch15.addConstraint(Sketcher.Constraint("Horizontal", 5))
sketch15.addConstraint(Sketcher.Constraint("Vertical", 6))
sketch15.addConstraint(Sketcher.Constraint("Horizontal", 7))
sketch15.addConstraint(Sketcher.Constraint("Equal", 7, 4))
sketch15.addConstraint(Sketcher.Constraint("DistanceY", 3, 2, 3, 1, Q("0.875 in")))
sketch15.addConstraint(Sketcher.Constraint("Angle", 1, Q("45 deg")))
sketch15.addConstraint(Sketcher.Constraint("DistanceX", 5, 2, 5, 1, Q("0.25 in")))
sketch15.addConstraint(Sketcher.Constraint("DistanceY", 0, 2, 4, 2, Q("0.5 in")))
sketch15.addConstraint(Sketcher.Constraint("DistanceX", 0, 2, 0, 1, Q("7.0755 in")))
sketch15.addConstraint(Sketcher.Constraint("DistanceX", -1, 1, 0, 2, Q("123.1207 mm")))
sketch15.addConstraint(Sketcher.Constraint("DistanceY", 0, 2, -1, 1, Q("61.0293 mm")))
sketch15.addConstraint(Sketcher.Constraint("DistanceX", -1, 1, 4, 2, Q("158.5686 mm")))
sketch15.setExpression("Constraints[16]", "Params.sketch15_height")
sketch15.setExpression("Constraints[18]", "Params.sketch15_width")
pocket9 = body.newObject("PartDesign::Pocket", "Pocket008")
pocket9.Profile = sketch15
pocket9.setExpression("Length", "Params.pocket9_length")
pocket9.Reversed = True

# Sketch on XZ plane
sketch16 = body.newObject("Sketcher::SketchObject", "Sketch015")
sketch16.AttachmentSupport = (doc.getObject("XZ_Plane"), [""])
sketch16.MapMode = "FlatFace"
sketch16.AttachmentOffset = App.Placement(Vector(0, 0, -0.25 * 25.4), App.Rotation())
add_polygon(sketch16, [(276, -102), (276, -127), (98, -127), (98, -102)])  # lines 0-3
sketch16.addConstraint(Sketcher.Constraint("Vertical", 0))
sketch16.addConstraint(Sketcher.Constraint("Horizontal", 1))
sketch16.addConstraint(Sketcher.Constraint("Vertical", 2))
sketch16.addConstraint(Sketcher.Constraint("Horizontal", 3))
sketch16.addConstraint(Sketcher.Constraint("DistanceX", 1, 2, 1, 1, Q("7 in")))
sketch16.addConstraint(Sketcher.Constraint("DistanceY", 0, 2, 0, 1, Q("1 in")))
sketch16.addConstraint(Sketcher.Constraint("DistanceY", 0, 2, -1, 1, Q("5 in")))
sketch16.addConstraint(Sketcher.Constraint("DistanceX", -1, 1, 0, 2, Q("10.875 in")))
sketch16.setExpression("Constraints[8]", "Params.sketch16_width")
sketch16.setExpression("Constraints[9]", "Params.sketch16_height")
pad7 = body.newObject("PartDesign::Pad", "Pad006")
pad7.Profile = sketch16
pad7.setExpression("Length", "Params.pad7_length")

# Sketch on XZ plane
sketch17 = body.newObject("Sketcher::SketchObject", "Sketch016")
sketch17.AttachmentSupport = (doc.getObject("XZ_Plane"), [""])
sketch17.MapMode = "FlatFace"
sketch17.AttachmentOffset = App.Placement(Vector(0, 0, -0.25 * 25.4), App.Rotation())
add_polygon(sketch17, [(295, -210), (295, -222), (29, -222), (29, -210)])  # lines 0-3
sketch17.addConstraint(Sketcher.Constraint("Vertical", 0))
sketch17.addConstraint(Sketcher.Constraint("Horizontal", 1))
sketch17.addConstraint(Sketcher.Constraint("Vertical", 2))
sketch17.addConstraint(Sketcher.Constraint("Horizontal", 3))
sketch17.addConstraint(Sketcher.Constraint("DistanceX", 1, 2, 1, 1, Q("10.5 in")))
sketch17.addConstraint(Sketcher.Constraint("DistanceY", 0, 2, 0, 1, Q("0.5 in")))
sketch17.addConstraint(Sketcher.Constraint("DistanceY", 0, 2, -1, 1, Q("8.75 in")))
sketch17.addConstraint(Sketcher.Constraint("DistanceX", -1, 1, 0, 2, Q("11.625 in")))
sketch17.setExpression("Constraints[8]", "Params.sketch17_width")
sketch17.setExpression("Constraints[9]", "Params.sketch17_height")
pocket10 = body.newObject("PartDesign::Pocket", "Pocket009")
pocket10.Profile = sketch17
pocket10.setExpression("Length", "Params.pocket10_length")
pocket10.Reversed = True

doc.recompute()
